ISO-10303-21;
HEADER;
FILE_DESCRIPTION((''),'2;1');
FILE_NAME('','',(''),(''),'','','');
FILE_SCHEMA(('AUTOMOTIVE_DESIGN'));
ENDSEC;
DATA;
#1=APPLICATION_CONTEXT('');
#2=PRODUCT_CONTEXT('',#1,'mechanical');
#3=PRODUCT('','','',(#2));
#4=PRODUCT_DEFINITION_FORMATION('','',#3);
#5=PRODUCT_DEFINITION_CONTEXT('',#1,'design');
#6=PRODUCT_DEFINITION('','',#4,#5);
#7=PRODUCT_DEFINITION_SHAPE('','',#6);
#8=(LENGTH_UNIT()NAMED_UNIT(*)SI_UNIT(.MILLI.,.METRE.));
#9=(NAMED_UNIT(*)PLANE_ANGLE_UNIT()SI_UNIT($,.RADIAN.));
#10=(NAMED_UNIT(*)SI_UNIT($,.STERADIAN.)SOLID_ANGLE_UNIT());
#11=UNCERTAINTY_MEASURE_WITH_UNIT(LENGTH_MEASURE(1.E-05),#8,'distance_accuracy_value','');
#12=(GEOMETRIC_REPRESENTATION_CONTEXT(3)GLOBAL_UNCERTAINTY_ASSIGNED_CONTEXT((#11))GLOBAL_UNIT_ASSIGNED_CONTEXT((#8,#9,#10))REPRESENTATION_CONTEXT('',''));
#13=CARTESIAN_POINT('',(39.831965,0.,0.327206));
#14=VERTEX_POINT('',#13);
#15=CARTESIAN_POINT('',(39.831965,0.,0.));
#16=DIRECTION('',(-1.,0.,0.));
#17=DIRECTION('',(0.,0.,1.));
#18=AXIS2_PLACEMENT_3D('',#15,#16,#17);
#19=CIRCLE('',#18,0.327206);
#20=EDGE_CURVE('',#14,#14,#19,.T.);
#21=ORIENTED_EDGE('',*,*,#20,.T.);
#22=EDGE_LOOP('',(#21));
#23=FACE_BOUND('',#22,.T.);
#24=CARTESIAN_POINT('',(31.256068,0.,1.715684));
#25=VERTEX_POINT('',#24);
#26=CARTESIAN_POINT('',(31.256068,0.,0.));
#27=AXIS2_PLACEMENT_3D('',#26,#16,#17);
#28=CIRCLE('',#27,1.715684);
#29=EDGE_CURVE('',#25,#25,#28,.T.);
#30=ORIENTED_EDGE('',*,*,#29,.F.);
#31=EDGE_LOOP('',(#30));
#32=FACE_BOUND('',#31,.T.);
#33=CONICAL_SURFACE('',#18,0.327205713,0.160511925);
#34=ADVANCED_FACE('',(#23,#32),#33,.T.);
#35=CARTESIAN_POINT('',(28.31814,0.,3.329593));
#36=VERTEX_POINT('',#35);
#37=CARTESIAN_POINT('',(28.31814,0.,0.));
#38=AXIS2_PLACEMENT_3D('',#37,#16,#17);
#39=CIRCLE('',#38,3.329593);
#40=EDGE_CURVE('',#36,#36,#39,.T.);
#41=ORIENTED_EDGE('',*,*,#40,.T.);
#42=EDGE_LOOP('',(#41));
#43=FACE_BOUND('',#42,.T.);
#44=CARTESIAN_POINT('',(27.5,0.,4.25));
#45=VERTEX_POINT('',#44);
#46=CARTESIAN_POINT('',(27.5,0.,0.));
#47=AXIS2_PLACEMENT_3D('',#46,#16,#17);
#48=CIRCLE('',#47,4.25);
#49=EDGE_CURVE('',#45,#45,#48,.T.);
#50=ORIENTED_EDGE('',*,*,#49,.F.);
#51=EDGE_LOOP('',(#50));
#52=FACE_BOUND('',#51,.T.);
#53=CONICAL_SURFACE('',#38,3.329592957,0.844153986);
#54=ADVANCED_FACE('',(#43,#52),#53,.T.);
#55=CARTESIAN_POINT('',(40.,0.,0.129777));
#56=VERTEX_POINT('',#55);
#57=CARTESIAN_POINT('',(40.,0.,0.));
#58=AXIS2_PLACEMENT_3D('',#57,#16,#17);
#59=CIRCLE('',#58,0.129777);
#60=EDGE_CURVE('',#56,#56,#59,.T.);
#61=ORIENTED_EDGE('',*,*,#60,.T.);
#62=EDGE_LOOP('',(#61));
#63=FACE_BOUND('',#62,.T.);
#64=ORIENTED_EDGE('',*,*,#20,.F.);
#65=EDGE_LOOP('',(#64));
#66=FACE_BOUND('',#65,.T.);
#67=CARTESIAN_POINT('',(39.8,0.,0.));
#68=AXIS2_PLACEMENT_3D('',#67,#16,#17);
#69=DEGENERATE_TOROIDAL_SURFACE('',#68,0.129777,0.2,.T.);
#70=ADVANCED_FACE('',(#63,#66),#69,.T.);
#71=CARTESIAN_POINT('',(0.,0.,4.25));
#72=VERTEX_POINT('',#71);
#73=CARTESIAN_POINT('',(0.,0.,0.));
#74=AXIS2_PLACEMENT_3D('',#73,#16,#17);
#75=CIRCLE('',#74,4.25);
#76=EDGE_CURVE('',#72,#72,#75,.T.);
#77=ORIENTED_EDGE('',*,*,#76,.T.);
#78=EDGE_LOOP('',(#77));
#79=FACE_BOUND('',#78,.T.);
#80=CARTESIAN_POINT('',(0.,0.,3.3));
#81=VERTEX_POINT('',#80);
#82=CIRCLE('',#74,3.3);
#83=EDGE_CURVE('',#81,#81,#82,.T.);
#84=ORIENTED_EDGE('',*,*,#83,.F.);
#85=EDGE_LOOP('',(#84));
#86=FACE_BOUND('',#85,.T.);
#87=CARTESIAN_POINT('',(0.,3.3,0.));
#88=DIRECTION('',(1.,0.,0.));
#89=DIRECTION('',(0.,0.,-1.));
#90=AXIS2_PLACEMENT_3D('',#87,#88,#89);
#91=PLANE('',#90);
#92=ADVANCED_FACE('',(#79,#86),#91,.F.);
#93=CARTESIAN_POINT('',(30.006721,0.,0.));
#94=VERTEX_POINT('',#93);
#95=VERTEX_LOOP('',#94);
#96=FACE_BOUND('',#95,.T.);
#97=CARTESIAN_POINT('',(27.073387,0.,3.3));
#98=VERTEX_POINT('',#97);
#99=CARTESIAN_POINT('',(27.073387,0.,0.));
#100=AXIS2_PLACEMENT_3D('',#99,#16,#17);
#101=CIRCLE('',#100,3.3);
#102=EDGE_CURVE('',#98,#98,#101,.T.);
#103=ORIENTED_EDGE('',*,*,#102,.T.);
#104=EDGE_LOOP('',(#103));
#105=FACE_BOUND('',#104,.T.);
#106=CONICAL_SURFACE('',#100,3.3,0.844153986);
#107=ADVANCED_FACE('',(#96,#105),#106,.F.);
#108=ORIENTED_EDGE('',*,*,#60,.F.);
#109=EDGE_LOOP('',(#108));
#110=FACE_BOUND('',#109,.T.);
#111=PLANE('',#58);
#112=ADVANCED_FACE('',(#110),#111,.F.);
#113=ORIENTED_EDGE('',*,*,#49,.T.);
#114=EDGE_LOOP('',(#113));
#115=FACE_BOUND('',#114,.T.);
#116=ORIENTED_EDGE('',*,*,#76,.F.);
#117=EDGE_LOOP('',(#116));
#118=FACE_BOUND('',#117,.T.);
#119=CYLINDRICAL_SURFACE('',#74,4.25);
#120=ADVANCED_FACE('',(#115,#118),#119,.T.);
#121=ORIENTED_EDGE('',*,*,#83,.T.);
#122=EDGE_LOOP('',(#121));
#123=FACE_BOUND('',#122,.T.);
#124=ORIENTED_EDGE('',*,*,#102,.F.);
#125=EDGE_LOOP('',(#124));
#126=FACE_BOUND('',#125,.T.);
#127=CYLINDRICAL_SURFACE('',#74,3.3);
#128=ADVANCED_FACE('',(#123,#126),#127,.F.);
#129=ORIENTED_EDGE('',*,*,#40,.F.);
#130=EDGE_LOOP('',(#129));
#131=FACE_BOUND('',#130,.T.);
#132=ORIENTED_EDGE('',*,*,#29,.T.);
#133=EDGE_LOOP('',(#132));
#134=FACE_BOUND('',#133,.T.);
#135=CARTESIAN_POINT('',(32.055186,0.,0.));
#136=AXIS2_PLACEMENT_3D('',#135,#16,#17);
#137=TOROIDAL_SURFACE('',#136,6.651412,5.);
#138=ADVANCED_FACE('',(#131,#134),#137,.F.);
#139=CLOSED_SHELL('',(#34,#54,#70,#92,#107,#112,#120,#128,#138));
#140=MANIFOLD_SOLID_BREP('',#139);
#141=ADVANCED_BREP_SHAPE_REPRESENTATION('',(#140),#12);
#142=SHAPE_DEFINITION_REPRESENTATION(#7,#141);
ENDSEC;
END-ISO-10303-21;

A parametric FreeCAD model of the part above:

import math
import FreeCAD as App
import Part
import Sketcher

doc = App.newDocument("Part")
body = doc.addObject("PartDesign::Body", "Body")

sketch1 = doc.addObject("Sketcher::SketchObject", "Sketch")
body.addObject(sketch1)
sketch1.AttachmentSupport = (doc.XY_Plane, [""])
sketch1.MapMode = "FlatFace"
sketch1.addGeometry([
    Part.LineSegment(App.Vector(0, 4.25, 0), App.Vector(0, 3.3, 0)),
    Part.LineSegment(App.Vector(0, 3.3, 0), App.Vector(27.07, 3.3, 0)),
    Part.LineSegment(App.Vector(27.07, 3.3, 0), App.Vector(30.01, 0, 0)),
    Part.LineSegment(App.Vector(30.01, 0, 0), App.Vector(40, 0, 0)),
    Part.LineSegment(App.Vector(40, 0, 0), App.Vector(40, 0.13, 0)),
    Part.ArcOfCircle(Part.Circle(App.Vector(39.8, 0.13, 0), App.Vector(0, 0, 1), 0.2), math.radians(0), math.radians(81)),
    Part.LineSegment(App.Vector(39.83, 0.33, 0), App.Vector(31.26, 1.72, 0)),
    Part.ArcOfCircle(Part.Circle(App.Vector(32.06, 6.65, 0), App.Vector(0, 0, 1), 5), math.radians(-138), math.radians(-99)),
    Part.LineSegment(App.Vector(28.32, 3.33, 0), App.Vector(27.5, 4.25, 0)),
    Part.LineSegment(App.Vector(27.5, 4.25, 0), App.Vector(0, 4.25, 0)),
], False)
sketch1.addConstraint([
    Sketcher.Constraint("Coincident", 0, 2, 1, 1),
    Sketcher.Constraint("Coincident", 1, 2, 2, 1),
    Sketcher.Constraint("Coincident", 2, 2, 3, 1),
    Sketcher.Constraint("Coincident", 3, 2, 4, 1),
    Sketcher.Constraint("Tangent", 4, 2, 5, 1),
    Sketcher.Constraint("Tangent", 5, 2, 6, 1),
    Sketcher.Constraint("Tangent", 6, 2, 7, 2),
    Sketcher.Constraint("Tangent", 7, 1, 8, 1),
    Sketcher.Constraint("Coincident", 8, 2, 9, 1),
    Sketcher.Constraint("Coincident", 9, 2, 0, 1),
    Sketcher.Constraint("Vertical", 0),
    Sketcher.Constraint("Horizontal", 1),
    Sketcher.Constraint("Horizontal", 3),
    Sketcher.Constraint("Vertical", 4),
    Sketcher.Constraint("Horizontal", 9),
    Sketcher.Constraint("PointOnObject", 0, 2, -2),
    Sketcher.Constraint("PointOnObject", 2, 2, -1),
    Sketcher.Constraint("Parallel", 2, 8),
    Sketcher.Constraint("Radius", 7, 5.0),
    Sketcher.Constraint("Radius", 5, 0.2),
    Sketcher.Constraint("DistanceX", 9, 2, 9, 1, 27.5),
    Sketcher.Constraint("DistanceX", -1, 1, 3, 2, 40.0),
    Sketcher.Constraint("DistanceY", 0, 2, 0, 1, 0.95),
    Sketcher.Constraint("DistanceY", -1, 1, 0, 2, 3.3),
    Sketcher.Constraint("DistanceX", 3, 1, 3, 2, 9.993279),
    Sketcher.Constraint("DistanceX", 1, 2, 7, 3, 4.981799),
    Sketcher.Constraint("Distance", 2, 4.415251),
    Sketcher.Constraint("Distance", 6, 8.68757),
])
revolution = doc.addObject("PartDesign::Revolution", "Revolution")
body.addObject(revolution)
revolution.Profile = sketch1
revolution.ReferenceAxis = (sketch1, ["H_Axis"])
revolution.Angle = 360

doc.recompute()
